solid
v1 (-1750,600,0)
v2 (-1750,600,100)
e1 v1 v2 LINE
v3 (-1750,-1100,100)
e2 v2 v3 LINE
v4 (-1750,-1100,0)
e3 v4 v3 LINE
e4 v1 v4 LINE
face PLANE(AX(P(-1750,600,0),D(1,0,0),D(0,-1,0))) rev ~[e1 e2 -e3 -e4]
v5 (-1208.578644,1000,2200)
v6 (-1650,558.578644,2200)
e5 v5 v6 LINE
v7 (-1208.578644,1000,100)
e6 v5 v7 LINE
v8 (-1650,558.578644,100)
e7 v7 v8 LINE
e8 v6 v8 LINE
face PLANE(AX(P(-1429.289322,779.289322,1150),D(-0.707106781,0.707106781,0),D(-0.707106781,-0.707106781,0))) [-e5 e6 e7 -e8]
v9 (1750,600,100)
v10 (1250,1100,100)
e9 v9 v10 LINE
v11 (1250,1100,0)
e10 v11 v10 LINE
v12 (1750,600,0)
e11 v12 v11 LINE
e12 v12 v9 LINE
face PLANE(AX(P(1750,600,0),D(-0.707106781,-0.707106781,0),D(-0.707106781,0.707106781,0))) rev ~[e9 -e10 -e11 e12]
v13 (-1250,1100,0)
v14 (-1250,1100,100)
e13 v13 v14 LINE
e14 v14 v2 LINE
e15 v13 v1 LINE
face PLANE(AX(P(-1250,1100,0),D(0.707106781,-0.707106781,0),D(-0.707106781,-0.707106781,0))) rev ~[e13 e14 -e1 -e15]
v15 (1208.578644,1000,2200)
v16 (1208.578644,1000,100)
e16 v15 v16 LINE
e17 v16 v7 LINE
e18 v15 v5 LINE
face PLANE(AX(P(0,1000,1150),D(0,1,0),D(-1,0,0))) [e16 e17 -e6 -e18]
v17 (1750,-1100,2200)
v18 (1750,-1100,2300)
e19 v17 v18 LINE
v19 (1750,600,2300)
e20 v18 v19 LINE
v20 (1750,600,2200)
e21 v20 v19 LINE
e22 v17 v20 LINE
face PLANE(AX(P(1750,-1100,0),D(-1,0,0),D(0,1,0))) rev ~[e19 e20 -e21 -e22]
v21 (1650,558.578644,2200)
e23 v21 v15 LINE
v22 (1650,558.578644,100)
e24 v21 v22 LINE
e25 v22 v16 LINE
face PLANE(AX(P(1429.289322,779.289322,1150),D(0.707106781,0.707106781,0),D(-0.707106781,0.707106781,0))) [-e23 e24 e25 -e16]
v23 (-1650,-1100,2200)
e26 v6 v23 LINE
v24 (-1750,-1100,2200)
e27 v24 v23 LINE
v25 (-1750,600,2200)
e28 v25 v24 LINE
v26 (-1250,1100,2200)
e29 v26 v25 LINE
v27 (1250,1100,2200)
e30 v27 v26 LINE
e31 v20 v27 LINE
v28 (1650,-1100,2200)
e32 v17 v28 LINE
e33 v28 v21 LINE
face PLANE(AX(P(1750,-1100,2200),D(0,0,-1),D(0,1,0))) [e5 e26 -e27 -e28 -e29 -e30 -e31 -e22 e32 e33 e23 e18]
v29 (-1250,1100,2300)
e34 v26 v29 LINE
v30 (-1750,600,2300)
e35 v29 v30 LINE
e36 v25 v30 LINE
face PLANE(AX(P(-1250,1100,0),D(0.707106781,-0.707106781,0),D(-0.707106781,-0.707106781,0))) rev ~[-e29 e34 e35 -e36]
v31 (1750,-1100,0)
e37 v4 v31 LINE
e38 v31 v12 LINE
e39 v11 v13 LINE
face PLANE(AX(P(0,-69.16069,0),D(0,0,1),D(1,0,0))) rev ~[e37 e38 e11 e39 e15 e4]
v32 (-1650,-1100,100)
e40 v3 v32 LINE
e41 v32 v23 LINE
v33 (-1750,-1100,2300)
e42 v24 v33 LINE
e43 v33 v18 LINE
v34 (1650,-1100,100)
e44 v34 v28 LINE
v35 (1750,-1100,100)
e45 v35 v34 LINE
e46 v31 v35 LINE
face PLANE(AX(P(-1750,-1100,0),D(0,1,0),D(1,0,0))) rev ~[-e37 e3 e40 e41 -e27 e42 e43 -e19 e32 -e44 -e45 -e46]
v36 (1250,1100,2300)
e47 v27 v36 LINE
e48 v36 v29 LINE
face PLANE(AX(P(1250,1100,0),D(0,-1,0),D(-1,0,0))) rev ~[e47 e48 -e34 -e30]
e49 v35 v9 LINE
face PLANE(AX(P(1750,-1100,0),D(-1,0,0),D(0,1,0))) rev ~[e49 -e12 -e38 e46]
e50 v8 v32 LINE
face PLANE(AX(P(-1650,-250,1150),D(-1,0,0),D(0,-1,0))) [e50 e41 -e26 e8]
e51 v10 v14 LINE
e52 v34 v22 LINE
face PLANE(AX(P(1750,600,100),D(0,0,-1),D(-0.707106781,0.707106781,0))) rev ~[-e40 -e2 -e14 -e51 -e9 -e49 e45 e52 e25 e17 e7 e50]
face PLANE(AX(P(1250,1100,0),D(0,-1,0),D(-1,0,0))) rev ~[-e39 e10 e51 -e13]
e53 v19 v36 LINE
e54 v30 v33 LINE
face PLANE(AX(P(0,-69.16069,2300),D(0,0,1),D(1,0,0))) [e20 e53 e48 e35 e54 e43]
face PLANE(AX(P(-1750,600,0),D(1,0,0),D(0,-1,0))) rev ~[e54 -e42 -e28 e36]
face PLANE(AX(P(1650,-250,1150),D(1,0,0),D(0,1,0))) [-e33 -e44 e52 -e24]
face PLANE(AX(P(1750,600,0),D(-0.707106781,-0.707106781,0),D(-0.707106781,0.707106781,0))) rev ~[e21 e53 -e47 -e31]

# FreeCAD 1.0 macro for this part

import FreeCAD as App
import Part
import Sketcher
from FreeCAD import Vector

doc = App.newDocument("Part")
params = doc.addObject("Spreadsheet::Sheet", "Params")
for row, (alias, value) in enumerate([
    ("sketch1_width", "2500 mm"),
    ("sketch1_width2", "3500 mm"),
    ("sketch1_height", "1700 mm"),
    ("pad1_length", "2300 mm"),
    ("sketch2_width", "1700 mm"),
    ("sketch2_height", "2100 mm"),
    ("pocket1_length", "100 mm"),
    ("pocket2_length", "100 mm"),
    ("sketch4_width", "2500 mm"),
    ("sketch4_height", "2100 mm"),
    ("pocket3_length", "100 mm"),
    ("pocket4_length", "100 mm"),
    ("sketch6_width", "1700 mm"),
    ("sketch6_height", "2100 mm"),
    ("pocket5_length", "100 mm"),
], start=1):
    params.set(f"A{row}", alias)
    params.set(f"B{row}", "=" + value)
    params.setAlias(f"B{row}", alias)

body = doc.addObject("PartDesign::Body", "Body")

# Sketch on XY plane
sketch1 = body.newObject("Sketcher::SketchObject", "Sketch")
sketch1.AttachmentSupport = (doc.getObject("XY_Plane"), [""])
sketch1.MapMode = "FlatFace"
sketch1.addGeometry([
    Part.LineSegment(Vector(1750, 600, 0), Vector(1250, 1100, 0)),  # 0
    Part.LineSegment(Vector(1250, 1100, 0), Vector(-1250, 1100, 0)),  # 1
    Part.LineSegment(Vector(-1250, 1100, 0), Vector(-1750, 600, 0)),  # 2
    Part.LineSegment(Vector(-1750, 600, 0), Vector(-1750, -1100, 0)),  # 3
    Part.LineSegment(Vector(-1750, -1100, 0), Vector(1750, -1100, 0)),  # 4
    Part.LineSegment(Vector(1750, -1100, 0), Vector(1750, 600, 0)),  # 5
], False)
sketch1.addConstraint([
    Sketcher.Constraint("Coincident", 0, 2, 1, 1),
    Sketcher.Constraint("Coincident", 1, 2, 2, 1),
    Sketcher.Constraint("Coincident", 2, 2, 3, 1),
    Sketcher.Constraint("Coincident", 3, 2, 4, 1),
    Sketcher.Constraint("Coincident", 4, 2, 5, 1),
    Sketcher.Constraint("Coincident", 5, 2, 0, 1),
    Sketcher.Constraint("Horizontal", 1),
    Sketcher.Constraint("Vertical", 3),
    Sketcher.Constraint("Horizontal", 4),
    Sketcher.Constraint("Vertical", 5),
    Sketcher.Constraint("Symmetric", 2, 2, 5, 2, -2),
    Sketcher.Constraint("Perpendicular", 0, 2),
    Sketcher.Constraint("Equal", 0, 2),
    Sketcher.Constraint("DistanceX", 1, 2, 1, 1, 2500.0),
    Sketcher.Constraint("DistanceX", 4, 1, 4, 2, 3500.0),
    Sketcher.Constraint("DistanceY", 3, 2, 3, 1, 1700.0),
    Sketcher.Constraint("DistanceY", -1, 1, 0, 2, 1100.0),
])
sketch1.setExpression("Constraints[13]", "Params.sketch1_width")
sketch1.setExpression("Constraints[14]", "Params.sketch1_width2")
sketch1.setExpression("Constraints[15]", "Params.sketch1_height")
pad1 = body.newObject("PartDesign::Pad", "Pad")
pad1.Profile = sketch1
pad1.setExpression("Length", "Params.pad1_length")

# Sketch on YZ plane
sketch2 = body.newObject("Sketcher::SketchObject", "Sketch001")
sketch2.AttachmentSupport = (doc.getObject("YZ_Plane"), [""])
sketch2.MapMode = "FlatFace"
sketch2.AttachmentOffset = App.Placement(Vector(0, 0, -1750), App.Rotation())
sketch2.addGeometry([
    Part.LineSegment(Vector(600, 2200, 0), Vector(600, 100, 0)),
    Part.LineSegment(Vector(600, 100, 0), Vector(-1100, 100, 0)),
    Part.LineSegment(Vector(-1100, 100, 0), Vector(-1100, 2200, 0)),
    Part.LineSegment(Vector(-1100, 2200, 0), Vector(600, 2200, 0)),
], False)
sketch2.addConstraint([
    Sketcher.Constraint("Coincident", 0, 2, 1, 1),
    Sketcher.Constraint("Coincident", 1, 2, 2, 1),
    Sketcher.Constraint("Coincident", 2, 2, 3, 1),
    Sketcher.Constraint("Coincident", 3, 2, 0, 1),
    Sketcher.Constraint("Vertical", 0),
    Sketcher.Constraint("Horizontal", 1),
    Sketcher.Constraint("Vertical", 2),
    Sketcher.Constraint("Horizontal", 3),
    Sketcher.Constraint("DistanceX", 1, 2, 1, 1, 1700.0),
    Sketcher.Constraint("DistanceY", 0, 2, 0, 1, 2100.0),
    Sketcher.Constraint("DistanceX", -1, 1, 0, 2, 600.0),
    Sketcher.Constraint("DistanceY", -1, 1, 0, 2, 100.0),
])
sketch2.setExpression("Constraints[8]", "Params.sketch2_width")
sketch2.setExpression("Constraints[9]", "Params.sketch2_height")
pocket1 = body.newObject("PartDesign::Pocket", "Pocket")
pocket1.Profile = sketch2
pocket1.setExpression("Length", "Params.pocket1_length")
pocket1.Reversed = True

# Sketch on an angled plane
sketch3 = body.newObject("Sketcher::SketchObject", "Sketch002")
sketch3.Placement = App.Placement(Vector(-1175, 1175, 0), App.Rotation(Vector(-0.707106781, -0.707106781, 0), Vector(0, 0, 0.999999999), Vector(-0.707106781, 0.707106781, 0), "ZXY"))
sketch3.addGeometry([
    Part.LineSegment(Vector(106, 2200, 0), Vector(106, 100, 0)),
    Part.LineSegment(Vector(106, 100, 0), Vector(813, 100, 0)),
    Part.LineSegment(Vector(813, 100, 0), Vector(813, 2200, 0)),
    Part.LineSegment(Vector(813, 2200, 0), Vector(106, 2200, 0)),
], False)
sketch3.addConstraint([
    Sketcher.Constraint("Coincident", 0, 2, 1, 1),
    Sketcher.Constraint("Coincident", 1, 2, 2, 1),
    Sketcher.Constraint("Coincident", 2, 2, 3, 1),
    Sketcher.Constraint("Coincident", 3, 2, 0, 1),
    Sketcher.Constraint("Vertical", 0),
    Sketcher.Constraint("Horizontal", 1),
    Sketcher.Constraint("Vertical", 2),
    Sketcher.Constraint("Horizontal", 3),
    Sketcher.Constraint("DistanceY", -1, 1, 0, 2, 100.0),
    Sketcher.Constraint("DistanceX", 1, 1, 1, 2, 707.106781),
    Sketcher.Constraint("DistanceY", 0, 2, 0, 1, 2099.999998),
    Sketcher.Constraint("DistanceX", -1, 1, 0, 2, 106.066017),
])
pocket2 = body.newObject("PartDesign::Pocket", "Pocket001")
pocket2.Profile = sketch3
pocket2.setExpression("Length", "Params.pocket2_length")

# Sketch on XZ plane
sketch4 = body.newObject("Sketcher::SketchObject", "Sketch003")
sketch4.AttachmentSupport = (doc.getObject("XZ_Plane"), [""])
sketch4.MapMode = "FlatFace"
sketch4.AttachmentOffset = App.Placement(Vector(0, 0, -1100), App.Rotation())
sketch4.addGeometry([
    Part.LineSegment(Vector(1250, 2200, 0), Vector(1250, 100, 0)),
    Part.LineSegment(Vector(1250, 100, 0), Vector(-1250, 100, 0)),
    Part.LineSegment(Vector(-1250, 100, 0), Vector(-1250, 2200, 0)),
    Part.LineSegment(Vector(-1250, 2200, 0), Vector(1250, 2200, 0)),
], False)
sketch4.addConstraint([
    Sketcher.Constraint("Coincident", 0, 2, 1, 1),
    Sketcher.Constraint("Coincident", 1, 2, 2, 1),
    Sketcher.Constraint("Coincident", 2, 2, 3, 1),
    Sketcher.Constraint("Coincident", 3, 2, 0, 1),
    Sketcher.Constraint("Vertical", 0),
    Sketcher.Constraint("Horizontal", 1),
    Sketcher.Constraint("Vertical", 2),
    Sketcher.Constraint("Horizontal", 3),
    Sketcher.Constraint("DistanceX", 1, 2, 1, 1, 2500.0),
    Sketcher.Constraint("DistanceY", 0, 2, 0, 1, 2100.0),
    Sketcher.Constraint("DistanceX", -1, 1, 0, 2, 1250.0),
    Sketcher.Constraint("DistanceY", -1, 1, 0, 2, 100.0),
])
sketch4.setExpression("Constraints[8]", "Params.sketch4_width")
sketch4.setExpression("Constraints[9]", "Params.sketch4_height")
pocket3 = body.newObject("PartDesign::Pocket", "Pocket002")
pocket3.Profile = sketch4
pocket3.setExpression("Length", "Params.pocket3_length")
pocket3.Reversed = True

# Sketch on an angled plane
sketch5 = body.newObject("Sketcher::SketchObject", "Sketch004")
sketch5.Placement = App.Placement(Vector(1175, 1175, 0), App.Rotation(Vector(-0.707106781, 0.707106781, 0), Vector(0, 0, 0.999999999), Vector(0.707106781, 0.707106781, 0), "ZXY"))
sketch5.addGeometry([
    Part.LineSegment(Vector(-813, 2200, 0), Vector(-813, 100, 0)),
    Part.LineSegment(Vector(-813, 100, 0), Vector(-106, 100, 0)),
    Part.LineSegment(Vector(-106, 100, 0), Vector(-106, 2200, 0)),
    Part.LineSegment(Vector(-106, 2200, 0), Vector(-813, 2200, 0)),
], False)
sketch5.addConstraint([
    Sketcher.Constraint("Coincident", 0, 2, 1, 1),
    Sketcher.Constraint("Coincident", 1, 2, 2, 1),
    Sketcher.Constraint("Coincident", 2, 2, 3, 1),
    Sketcher.Constraint("Coincident", 3, 2, 0, 1),
    Sketcher.Constraint("Vertical", 0),
    Sketcher.Constraint("Horizontal", 1),
    Sketcher.Constraint("Vertical", 2),
    Sketcher.Constraint("Horizontal", 3),
    Sketcher.Constraint("DistanceY", -1, 1, 0, 2, 100.0),
    Sketcher.Constraint("DistanceX", 1, 1, 1, 2, 707.106781),
    Sketcher.Constraint("DistanceY", 0, 2, 0, 1, 2099.999998),
    Sketcher.Constraint("DistanceX", 0, 2, -1, 1, 813.172798),
])
pocket4 = body.newObject("PartDesign::Pocket", "Pocket003")
pocket4.Profile = sketch5
pocket4.setExpression("Length", "Params.pocket4_length")

# Sketch on YZ plane
sketch6 = body.newObject("Sketcher::SketchObject", "Sketch005")
sketch6.AttachmentSupport = (doc.getObject("YZ_Plane"), [""])
sketch6.MapMode = "FlatFace"
sketch6.AttachmentOffset = App.Placement(Vector(0, 0, 1750), App.Rotation())
sketch6.addGeometry([
    Part.LineSegment(Vector(-1100, 2200, 0), Vector(-1100, 100, 0)),
    Part.LineSegment(Vector(-1100, 100, 0), Vector(600, 100, 0)),
    Part.LineSegment(Vector(600, 100, 0), Vector(600, 2200, 0)),
    Part.LineSegment(Vector(600, 2200, 0), Vector(-1100, 2200, 0)),
], False)
sketch6.addConstraint([
    Sketcher.Constraint("Coincident", 0, 2, 1, 1),
    Sketcher.Constraint("Coincident", 1, 2, 2, 1),
    Sketcher.Constraint("Coincident", 2, 2, 3, 1),
    Sketcher.Constraint("Coincident", 3, 2, 0, 1),
    Sketcher.Constraint("Vertical", 0),
    Sketcher.Constraint("Horizontal", 1),
    Sketcher.Constraint("Vertical", 2),
    Sketcher.Constraint("Horizontal", 3),
    Sketcher.Constraint("DistanceX", 1, 1, 1, 2, 1700.0),
    Sketcher.Constraint("DistanceY", 0, 2, 0, 1, 2100.0),
    Sketcher.Constraint("DistanceX", 0, 2, -1, 1, 1100.0),
    Sketcher.Constraint("DistanceY", -1, 1, 0, 2, 100.0),
])
sketch6.setExpression("Constraints[8]", "Params.sketch6_width")
sketch6.setExpression("Constraints[9]", "Params.sketch6_height")
pocket5 = body.newObject("PartDesign::Pocket", "Pocket004")
pocket5.Profile = sketch6
pocket5.setExpression("Length", "Params.pocket5_length")

doc.recompute()
